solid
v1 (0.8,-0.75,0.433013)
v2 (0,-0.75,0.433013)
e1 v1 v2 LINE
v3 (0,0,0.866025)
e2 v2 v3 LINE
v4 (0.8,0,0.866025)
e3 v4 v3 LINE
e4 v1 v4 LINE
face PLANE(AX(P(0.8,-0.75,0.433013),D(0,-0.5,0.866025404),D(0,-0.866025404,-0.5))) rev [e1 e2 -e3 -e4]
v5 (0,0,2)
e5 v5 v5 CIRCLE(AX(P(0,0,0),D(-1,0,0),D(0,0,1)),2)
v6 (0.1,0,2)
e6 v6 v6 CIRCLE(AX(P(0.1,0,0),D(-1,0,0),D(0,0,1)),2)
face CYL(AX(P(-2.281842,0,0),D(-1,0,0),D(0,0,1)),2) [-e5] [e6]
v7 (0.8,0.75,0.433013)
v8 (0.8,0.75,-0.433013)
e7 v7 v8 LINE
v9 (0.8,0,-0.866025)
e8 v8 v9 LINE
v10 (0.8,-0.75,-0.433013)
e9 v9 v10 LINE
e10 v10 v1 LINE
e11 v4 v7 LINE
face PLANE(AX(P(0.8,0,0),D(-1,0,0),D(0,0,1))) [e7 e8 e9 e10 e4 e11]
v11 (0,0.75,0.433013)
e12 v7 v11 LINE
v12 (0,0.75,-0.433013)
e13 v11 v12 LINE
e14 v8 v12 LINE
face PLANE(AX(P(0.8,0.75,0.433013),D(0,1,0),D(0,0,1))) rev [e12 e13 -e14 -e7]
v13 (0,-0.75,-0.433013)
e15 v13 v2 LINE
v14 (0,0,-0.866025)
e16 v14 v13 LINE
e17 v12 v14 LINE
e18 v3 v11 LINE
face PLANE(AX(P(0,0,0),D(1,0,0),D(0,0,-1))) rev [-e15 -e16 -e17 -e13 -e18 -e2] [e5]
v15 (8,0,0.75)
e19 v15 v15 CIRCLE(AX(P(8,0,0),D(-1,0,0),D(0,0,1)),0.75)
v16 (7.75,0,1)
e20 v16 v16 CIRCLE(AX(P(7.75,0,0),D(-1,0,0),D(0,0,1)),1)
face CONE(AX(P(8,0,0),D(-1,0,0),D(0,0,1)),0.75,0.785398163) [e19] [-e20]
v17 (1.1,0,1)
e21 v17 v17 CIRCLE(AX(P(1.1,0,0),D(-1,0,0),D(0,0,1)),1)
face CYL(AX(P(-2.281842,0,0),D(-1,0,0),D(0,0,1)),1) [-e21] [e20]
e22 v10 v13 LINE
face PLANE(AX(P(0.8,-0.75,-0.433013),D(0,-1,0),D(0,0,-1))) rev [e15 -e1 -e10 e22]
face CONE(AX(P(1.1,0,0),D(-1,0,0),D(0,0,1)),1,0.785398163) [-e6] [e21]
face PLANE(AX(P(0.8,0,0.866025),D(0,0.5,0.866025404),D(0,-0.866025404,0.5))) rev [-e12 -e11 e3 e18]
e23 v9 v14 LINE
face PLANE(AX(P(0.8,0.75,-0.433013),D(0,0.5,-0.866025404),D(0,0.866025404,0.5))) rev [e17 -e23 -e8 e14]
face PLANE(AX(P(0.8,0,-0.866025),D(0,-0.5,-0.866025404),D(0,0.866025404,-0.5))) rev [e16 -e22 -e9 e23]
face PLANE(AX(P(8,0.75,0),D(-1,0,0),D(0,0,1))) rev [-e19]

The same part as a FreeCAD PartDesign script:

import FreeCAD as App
import Part
import Sketcher
from FreeCAD import Vector
Q = App.Units.Quantity

doc = App.newDocument("Part")
body = doc.addObject("PartDesign::Body", "Body")

sketch1 = body.newObject("Sketcher::SketchObject", "Sketch")
sketch1.AttachmentSupport = (doc.getObject("XY_Plane"), [""])
sketch1.MapMode = "FlatFace"
sketch1.addGeometry([
    Part.LineSegment(Vector(0, 2, 0), Vector(0, 0, 0)),
    Part.LineSegment(Vector(0, 0, 0), Vector(8, 0, 0)),
    Part.LineSegment(Vector(8, 0, 0), Vector(8, 0.75, 0)),
    Part.LineSegment(Vector(8, 0.75, 0), Vector(7.75, 1, 0)),
    Part.LineSegment(Vector(7.75, 1, 0), Vector(1.1, 1, 0)),
    Part.LineSegment(Vector(1.1, 1, 0), Vector(0.1, 2, 0)),
    Part.LineSegment(Vector(0.1, 2, 0), Vector(0, 2, 0)),
], False)
sketch1.addConstraint([
    Sketcher.Constraint("Coincident", 0, 2, 1, 1),
    Sketcher.Constraint("Coincident", 1, 2, 2, 1),
    Sketcher.Constraint("Coincident", 2, 2, 3, 1),
    Sketcher.Constraint("Coincident", 3, 2, 4, 1),
    Sketcher.Constraint("Coincident", 4, 2, 5, 1),
    Sketcher.Constraint("Coincident", 5, 2, 6, 1),
    Sketcher.Constraint("Coincident", 6, 2, 0, 1),
    Sketcher.Constraint("Vertical", 0),
    Sketcher.Constraint("Horizontal", 1),
    Sketcher.Constraint("Vertical", 2),
    Sketcher.Constraint("Horizontal", 4),
    Sketcher.Constraint("Horizontal", 6),
    Sketcher.Constraint("Coincident", 0, 2, -1, 1),
    Sketcher.Constraint("Parallel", 3, 5),
    Sketcher.Constraint("DistanceX", 1, 1, 1, 2, 8.0),
    Sketcher.Constraint("DistanceY", 0, 2, 0, 1, 2.0),
    Sketcher.Constraint("Angle", 3, Q("135 deg")),
    Sketcher.Constraint("DistanceX", 6, 2, 6, 1, 0.1),
    Sketcher.Constraint("DistanceY", -1, 1, 3, 2, 1.0),
    Sketcher.Constraint("DistanceX", 4, 2, 4, 1, 6.65),
])
revolution = body.newObject("PartDesign::Revolution", "Revolution")
revolution.Profile = sketch1
revolution.ReferenceAxis = (sketch1, ["H_Axis"])
revolution.Angle = 360

sketch2 = body.newObject("Sketcher::SketchObject", "Sketch001")
sketch2.AttachmentSupport = (doc.getObject("YZ_Plane"), [""])
sketch2.MapMode = "FlatFace"
sketch2.addGeometry([
    Part.LineSegment(Vector(-0.8, 0.4, 0), Vector(0, 0.9, 0)),
    Part.LineSegment(Vector(0, 0.9, 0), Vector(0.8, 0.4, 0)),
    Part.LineSegment(Vector(0.8, 0.4, 0), Vector(0.8, -0.4, 0)),
    Part.LineSegment(Vector(0.8, -0.4, 0), Vector(0, -0.9, 0)),
    Part.LineSegment(Vector(0, -0.9, 0), Vector(-0.8, -0.4, 0)),
    Part.LineSegment(Vector(-0.8, -0.4, 0), Vector(-0.8, 0.4, 0)),
], False)
sketch2.addConstraint([
    Sketcher.Constraint("Coincident", 0, 2, 1, 1),
    Sketcher.Constraint("Coincident", 1, 2, 2, 1),
    Sketcher.Constraint("Coincident", 2, 2, 3, 1),
    Sketcher.Constraint("Coincident", 3, 2, 4, 1),
    Sketcher.Constraint("Coincident", 4, 2, 5, 1),
    Sketcher.Constraint("Coincident", 5, 2, 0, 1),
    Sketcher.Constraint("Vertical", 2),
    Sketcher.Constraint("Vertical", 5),
    Sketcher.Constraint("Symmetric", 0, 2, 3, 2, -1, 1),
    Sketcher.Constraint("Symmetric", 1, 2, 4, 2, -1, 1),
    Sketcher.Constraint("PointOnObject", 0, 2, -2),
    Sketcher.Constraint("Parallel", 0, 3),
    Sketcher.Constraint("Horizontal", 2, 2, 4, 2),
    Sketcher.Constraint("Angle", 0, Q("30 deg")),
    Sketcher.Constraint("DistanceX", 4, 2, 2, 2, 1.5),
    Sketcher.Constraint("DistanceY", 2, 2, 2, 1, 0.866025),
])
pocket1 = body.newObject("PartDesign::Pocket", "Pocket")
pocket1.Profile = sketch2
pocket1.Length = 0.8
pocket1.Reversed = True

doc.recompute()
